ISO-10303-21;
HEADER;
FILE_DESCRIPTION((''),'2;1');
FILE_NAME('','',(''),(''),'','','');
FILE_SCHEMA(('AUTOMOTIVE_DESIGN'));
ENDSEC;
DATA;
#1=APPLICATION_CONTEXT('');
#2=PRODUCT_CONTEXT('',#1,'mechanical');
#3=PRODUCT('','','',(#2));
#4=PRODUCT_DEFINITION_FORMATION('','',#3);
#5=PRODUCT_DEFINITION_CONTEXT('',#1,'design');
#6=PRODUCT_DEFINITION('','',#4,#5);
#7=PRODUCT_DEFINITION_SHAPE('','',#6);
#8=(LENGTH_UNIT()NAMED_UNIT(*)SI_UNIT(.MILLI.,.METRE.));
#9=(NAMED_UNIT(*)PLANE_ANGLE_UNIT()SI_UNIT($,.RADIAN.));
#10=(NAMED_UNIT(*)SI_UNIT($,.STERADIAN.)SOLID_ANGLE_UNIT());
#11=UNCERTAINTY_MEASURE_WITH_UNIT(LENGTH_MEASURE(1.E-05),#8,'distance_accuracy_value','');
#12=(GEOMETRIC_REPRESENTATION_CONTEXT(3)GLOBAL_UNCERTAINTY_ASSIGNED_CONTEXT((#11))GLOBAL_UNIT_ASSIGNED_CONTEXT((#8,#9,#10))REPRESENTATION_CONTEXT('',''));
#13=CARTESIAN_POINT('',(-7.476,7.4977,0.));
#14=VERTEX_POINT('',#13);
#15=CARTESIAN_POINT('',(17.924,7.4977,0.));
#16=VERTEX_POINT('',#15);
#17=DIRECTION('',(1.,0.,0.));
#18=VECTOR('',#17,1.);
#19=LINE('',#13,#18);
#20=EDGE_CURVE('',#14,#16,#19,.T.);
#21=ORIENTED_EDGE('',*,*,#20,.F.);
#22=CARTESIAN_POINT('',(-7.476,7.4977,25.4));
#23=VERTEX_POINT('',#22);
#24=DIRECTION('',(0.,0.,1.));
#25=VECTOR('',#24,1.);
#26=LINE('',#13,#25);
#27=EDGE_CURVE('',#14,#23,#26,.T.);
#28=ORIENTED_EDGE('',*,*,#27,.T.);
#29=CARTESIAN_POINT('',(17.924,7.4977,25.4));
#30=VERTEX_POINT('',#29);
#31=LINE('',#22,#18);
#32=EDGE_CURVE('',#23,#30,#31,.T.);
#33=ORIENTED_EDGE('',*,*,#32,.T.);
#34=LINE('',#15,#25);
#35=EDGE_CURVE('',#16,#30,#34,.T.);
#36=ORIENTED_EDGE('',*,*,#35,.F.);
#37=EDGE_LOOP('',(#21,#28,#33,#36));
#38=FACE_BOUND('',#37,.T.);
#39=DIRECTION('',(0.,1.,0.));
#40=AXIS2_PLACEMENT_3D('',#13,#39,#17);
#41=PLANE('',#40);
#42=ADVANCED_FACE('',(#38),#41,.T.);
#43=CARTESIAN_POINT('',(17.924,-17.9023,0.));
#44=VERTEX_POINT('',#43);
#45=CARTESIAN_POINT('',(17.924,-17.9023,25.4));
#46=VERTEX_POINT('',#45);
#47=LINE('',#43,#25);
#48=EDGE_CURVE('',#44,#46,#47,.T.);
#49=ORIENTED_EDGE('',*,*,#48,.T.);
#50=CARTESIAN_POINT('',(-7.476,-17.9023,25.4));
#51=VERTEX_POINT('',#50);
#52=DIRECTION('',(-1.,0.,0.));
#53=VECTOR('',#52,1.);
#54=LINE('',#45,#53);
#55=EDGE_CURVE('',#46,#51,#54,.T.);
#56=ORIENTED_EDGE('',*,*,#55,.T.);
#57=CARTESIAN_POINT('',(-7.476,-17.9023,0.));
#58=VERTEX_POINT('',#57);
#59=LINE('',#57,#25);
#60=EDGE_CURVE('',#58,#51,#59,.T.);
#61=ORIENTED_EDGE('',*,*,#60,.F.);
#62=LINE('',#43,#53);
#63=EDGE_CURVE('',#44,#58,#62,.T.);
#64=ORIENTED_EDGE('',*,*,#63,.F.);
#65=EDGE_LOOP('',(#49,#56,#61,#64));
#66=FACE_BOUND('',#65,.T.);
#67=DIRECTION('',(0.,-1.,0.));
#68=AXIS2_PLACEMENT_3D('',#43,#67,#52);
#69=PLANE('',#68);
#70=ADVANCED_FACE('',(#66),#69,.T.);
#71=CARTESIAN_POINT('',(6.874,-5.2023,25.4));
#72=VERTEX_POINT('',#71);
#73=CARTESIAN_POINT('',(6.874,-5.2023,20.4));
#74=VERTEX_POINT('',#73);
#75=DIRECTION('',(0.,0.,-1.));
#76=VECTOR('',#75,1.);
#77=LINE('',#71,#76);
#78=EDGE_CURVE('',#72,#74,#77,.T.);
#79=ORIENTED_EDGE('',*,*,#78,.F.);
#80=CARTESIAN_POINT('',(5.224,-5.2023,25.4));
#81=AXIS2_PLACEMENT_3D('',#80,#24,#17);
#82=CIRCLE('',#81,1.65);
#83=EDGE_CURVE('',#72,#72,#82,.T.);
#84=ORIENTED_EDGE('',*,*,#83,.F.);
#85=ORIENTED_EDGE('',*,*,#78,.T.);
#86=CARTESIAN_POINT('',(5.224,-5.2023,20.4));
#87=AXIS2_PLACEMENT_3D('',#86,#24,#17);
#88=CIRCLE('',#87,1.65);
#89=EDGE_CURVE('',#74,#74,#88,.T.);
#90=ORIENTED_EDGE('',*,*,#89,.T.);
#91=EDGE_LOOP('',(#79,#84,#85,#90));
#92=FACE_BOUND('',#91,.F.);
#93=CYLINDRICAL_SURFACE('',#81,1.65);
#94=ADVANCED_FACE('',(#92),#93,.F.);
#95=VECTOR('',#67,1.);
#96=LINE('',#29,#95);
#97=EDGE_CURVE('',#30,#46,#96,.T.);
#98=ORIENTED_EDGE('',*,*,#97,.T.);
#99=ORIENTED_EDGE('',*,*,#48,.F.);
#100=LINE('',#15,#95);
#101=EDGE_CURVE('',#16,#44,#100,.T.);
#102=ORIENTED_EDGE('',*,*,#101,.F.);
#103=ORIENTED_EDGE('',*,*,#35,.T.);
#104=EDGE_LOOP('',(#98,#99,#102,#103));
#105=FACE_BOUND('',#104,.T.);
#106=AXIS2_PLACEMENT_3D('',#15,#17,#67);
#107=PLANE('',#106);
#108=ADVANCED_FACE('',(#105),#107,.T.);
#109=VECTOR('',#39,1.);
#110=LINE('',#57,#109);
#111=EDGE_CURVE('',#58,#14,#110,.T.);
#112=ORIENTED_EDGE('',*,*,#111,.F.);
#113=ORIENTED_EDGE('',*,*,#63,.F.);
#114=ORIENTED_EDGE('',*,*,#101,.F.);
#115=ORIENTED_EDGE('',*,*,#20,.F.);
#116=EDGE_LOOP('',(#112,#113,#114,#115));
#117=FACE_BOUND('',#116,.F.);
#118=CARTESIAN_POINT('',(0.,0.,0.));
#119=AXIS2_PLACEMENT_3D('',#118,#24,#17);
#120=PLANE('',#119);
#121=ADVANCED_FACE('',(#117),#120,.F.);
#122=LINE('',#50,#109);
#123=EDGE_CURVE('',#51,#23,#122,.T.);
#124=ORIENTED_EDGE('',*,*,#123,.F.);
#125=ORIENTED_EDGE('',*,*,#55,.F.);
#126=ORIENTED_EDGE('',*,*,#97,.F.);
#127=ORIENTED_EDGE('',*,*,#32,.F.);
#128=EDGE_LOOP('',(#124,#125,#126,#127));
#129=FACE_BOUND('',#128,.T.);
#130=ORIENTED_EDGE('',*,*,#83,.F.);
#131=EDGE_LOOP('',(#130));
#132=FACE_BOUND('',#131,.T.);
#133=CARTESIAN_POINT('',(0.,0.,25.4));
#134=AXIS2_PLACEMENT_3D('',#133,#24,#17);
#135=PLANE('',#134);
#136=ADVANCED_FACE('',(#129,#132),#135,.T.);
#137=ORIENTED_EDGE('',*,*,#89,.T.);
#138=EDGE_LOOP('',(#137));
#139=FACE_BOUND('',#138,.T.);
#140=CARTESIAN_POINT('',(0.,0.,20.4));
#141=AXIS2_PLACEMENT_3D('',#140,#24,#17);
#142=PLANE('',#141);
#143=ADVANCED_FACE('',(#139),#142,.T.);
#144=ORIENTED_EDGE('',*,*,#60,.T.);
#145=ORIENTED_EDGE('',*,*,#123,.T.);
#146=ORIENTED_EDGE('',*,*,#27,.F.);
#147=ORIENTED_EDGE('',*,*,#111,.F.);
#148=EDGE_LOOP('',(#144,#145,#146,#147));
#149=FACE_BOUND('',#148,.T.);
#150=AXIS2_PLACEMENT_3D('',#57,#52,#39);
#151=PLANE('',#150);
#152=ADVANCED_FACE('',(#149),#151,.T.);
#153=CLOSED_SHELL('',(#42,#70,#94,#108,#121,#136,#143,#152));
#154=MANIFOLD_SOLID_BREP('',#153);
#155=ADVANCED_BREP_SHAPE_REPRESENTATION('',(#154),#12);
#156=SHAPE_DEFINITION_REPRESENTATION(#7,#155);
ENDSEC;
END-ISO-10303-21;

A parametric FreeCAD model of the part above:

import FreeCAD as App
import Part
import Sketcher
from FreeCAD import Vector

doc = App.newDocument("Part")
body = doc.addObject("PartDesign::Body", "Body")

# Sketch on XY plane
sketch1 = doc.addObject("Sketcher::SketchObject", "Sketch")
body.addObject(sketch1)
sketch1.AttachmentSupport = (doc.XY_Plane, [""])
sketch1.MapMode = "FlatFace"
sketch1.addGeometry(Part.LineSegment(Vector(18, 7, 0), Vector(-7, 7, 0)), False)
sketch1.addGeometry(Part.LineSegment(Vector(-7, 7, 0), Vector(-7, -18, 0)), False)
sketch1.addGeometry(Part.LineSegment(Vector(-7, -18, 0), Vector(18, -18, 0)), False)
sketch1.addGeometry(Part.LineSegment(Vector(18, -18, 0), Vector(18, 7, 0)), False)
sketch1.addConstraint(Sketcher.Constraint("Coincident", 0, 2, 1, 1))
sketch1.addConstraint(Sketcher.Constraint("Coincident", 1, 2, 2, 1))
sketch1.addConstraint(Sketcher.Constraint("Coincident", 2, 2, 3, 1))
sketch1.addConstraint(Sketcher.Constraint("Coincident", 3, 2, 0, 1))
sketch1.addConstraint(Sketcher.Constraint("Horizontal", 0))
sketch1.addConstraint(Sketcher.Constraint("Vertical", 1))
sketch1.addConstraint(Sketcher.Constraint("Horizontal", 2))
sketch1.addConstraint(Sketcher.Constraint("Vertical", 3))
sketch1.addConstraint(Sketcher.Constraint("Equal", 2, 1))
sketch1.addConstraint(Sketcher.Constraint("DistanceX", 0, 2, 0, 1, 25.4))
sketch1.addConstraint(Sketcher.Constraint("DistanceX", 0, 2, -1, 1, 7.476))
sketch1.addConstraint(Sketcher.Constraint("DistanceY", -1, 1, 0, 2, 7.4977))
pad1 = doc.addObject("PartDesign::Pad", "Pad")
body.addObject(pad1)
pad1.Profile = sketch1
pad1.Length = 25.4

# Sketch on XY plane
sketch2 = doc.addObject("Sketcher::SketchObject", "Sketch001")
body.addObject(sketch2)
sketch2.AttachmentSupport = (doc.XY_Plane, [""])
sketch2.MapMode = "FlatFace"
sketch2.AttachmentOffset = App.Placement(Vector(0, 0, 25.4), App.Rotation())
sketch2.addGeometry(Part.Circle(Vector(5.2, -5.2, 0), Vector(0, 0, 1), 1.6), False)
sketch2.addConstraint(Sketcher.Constraint("Diameter", 0, 3.3))
sketch2.addConstraint(Sketcher.Constraint("DistanceX", -1, 1, 0, 3, 5.224))
sketch2.addConstraint(Sketcher.Constraint("DistanceY", 0, 3, -1, 1, 5.2023))
pocket1 = doc.addObject("PartDesign::Pocket", "Pocket")
body.addObject(pocket1)
pocket1.Profile = sketch2
pocket1.Length = 5

doc.recompute()
